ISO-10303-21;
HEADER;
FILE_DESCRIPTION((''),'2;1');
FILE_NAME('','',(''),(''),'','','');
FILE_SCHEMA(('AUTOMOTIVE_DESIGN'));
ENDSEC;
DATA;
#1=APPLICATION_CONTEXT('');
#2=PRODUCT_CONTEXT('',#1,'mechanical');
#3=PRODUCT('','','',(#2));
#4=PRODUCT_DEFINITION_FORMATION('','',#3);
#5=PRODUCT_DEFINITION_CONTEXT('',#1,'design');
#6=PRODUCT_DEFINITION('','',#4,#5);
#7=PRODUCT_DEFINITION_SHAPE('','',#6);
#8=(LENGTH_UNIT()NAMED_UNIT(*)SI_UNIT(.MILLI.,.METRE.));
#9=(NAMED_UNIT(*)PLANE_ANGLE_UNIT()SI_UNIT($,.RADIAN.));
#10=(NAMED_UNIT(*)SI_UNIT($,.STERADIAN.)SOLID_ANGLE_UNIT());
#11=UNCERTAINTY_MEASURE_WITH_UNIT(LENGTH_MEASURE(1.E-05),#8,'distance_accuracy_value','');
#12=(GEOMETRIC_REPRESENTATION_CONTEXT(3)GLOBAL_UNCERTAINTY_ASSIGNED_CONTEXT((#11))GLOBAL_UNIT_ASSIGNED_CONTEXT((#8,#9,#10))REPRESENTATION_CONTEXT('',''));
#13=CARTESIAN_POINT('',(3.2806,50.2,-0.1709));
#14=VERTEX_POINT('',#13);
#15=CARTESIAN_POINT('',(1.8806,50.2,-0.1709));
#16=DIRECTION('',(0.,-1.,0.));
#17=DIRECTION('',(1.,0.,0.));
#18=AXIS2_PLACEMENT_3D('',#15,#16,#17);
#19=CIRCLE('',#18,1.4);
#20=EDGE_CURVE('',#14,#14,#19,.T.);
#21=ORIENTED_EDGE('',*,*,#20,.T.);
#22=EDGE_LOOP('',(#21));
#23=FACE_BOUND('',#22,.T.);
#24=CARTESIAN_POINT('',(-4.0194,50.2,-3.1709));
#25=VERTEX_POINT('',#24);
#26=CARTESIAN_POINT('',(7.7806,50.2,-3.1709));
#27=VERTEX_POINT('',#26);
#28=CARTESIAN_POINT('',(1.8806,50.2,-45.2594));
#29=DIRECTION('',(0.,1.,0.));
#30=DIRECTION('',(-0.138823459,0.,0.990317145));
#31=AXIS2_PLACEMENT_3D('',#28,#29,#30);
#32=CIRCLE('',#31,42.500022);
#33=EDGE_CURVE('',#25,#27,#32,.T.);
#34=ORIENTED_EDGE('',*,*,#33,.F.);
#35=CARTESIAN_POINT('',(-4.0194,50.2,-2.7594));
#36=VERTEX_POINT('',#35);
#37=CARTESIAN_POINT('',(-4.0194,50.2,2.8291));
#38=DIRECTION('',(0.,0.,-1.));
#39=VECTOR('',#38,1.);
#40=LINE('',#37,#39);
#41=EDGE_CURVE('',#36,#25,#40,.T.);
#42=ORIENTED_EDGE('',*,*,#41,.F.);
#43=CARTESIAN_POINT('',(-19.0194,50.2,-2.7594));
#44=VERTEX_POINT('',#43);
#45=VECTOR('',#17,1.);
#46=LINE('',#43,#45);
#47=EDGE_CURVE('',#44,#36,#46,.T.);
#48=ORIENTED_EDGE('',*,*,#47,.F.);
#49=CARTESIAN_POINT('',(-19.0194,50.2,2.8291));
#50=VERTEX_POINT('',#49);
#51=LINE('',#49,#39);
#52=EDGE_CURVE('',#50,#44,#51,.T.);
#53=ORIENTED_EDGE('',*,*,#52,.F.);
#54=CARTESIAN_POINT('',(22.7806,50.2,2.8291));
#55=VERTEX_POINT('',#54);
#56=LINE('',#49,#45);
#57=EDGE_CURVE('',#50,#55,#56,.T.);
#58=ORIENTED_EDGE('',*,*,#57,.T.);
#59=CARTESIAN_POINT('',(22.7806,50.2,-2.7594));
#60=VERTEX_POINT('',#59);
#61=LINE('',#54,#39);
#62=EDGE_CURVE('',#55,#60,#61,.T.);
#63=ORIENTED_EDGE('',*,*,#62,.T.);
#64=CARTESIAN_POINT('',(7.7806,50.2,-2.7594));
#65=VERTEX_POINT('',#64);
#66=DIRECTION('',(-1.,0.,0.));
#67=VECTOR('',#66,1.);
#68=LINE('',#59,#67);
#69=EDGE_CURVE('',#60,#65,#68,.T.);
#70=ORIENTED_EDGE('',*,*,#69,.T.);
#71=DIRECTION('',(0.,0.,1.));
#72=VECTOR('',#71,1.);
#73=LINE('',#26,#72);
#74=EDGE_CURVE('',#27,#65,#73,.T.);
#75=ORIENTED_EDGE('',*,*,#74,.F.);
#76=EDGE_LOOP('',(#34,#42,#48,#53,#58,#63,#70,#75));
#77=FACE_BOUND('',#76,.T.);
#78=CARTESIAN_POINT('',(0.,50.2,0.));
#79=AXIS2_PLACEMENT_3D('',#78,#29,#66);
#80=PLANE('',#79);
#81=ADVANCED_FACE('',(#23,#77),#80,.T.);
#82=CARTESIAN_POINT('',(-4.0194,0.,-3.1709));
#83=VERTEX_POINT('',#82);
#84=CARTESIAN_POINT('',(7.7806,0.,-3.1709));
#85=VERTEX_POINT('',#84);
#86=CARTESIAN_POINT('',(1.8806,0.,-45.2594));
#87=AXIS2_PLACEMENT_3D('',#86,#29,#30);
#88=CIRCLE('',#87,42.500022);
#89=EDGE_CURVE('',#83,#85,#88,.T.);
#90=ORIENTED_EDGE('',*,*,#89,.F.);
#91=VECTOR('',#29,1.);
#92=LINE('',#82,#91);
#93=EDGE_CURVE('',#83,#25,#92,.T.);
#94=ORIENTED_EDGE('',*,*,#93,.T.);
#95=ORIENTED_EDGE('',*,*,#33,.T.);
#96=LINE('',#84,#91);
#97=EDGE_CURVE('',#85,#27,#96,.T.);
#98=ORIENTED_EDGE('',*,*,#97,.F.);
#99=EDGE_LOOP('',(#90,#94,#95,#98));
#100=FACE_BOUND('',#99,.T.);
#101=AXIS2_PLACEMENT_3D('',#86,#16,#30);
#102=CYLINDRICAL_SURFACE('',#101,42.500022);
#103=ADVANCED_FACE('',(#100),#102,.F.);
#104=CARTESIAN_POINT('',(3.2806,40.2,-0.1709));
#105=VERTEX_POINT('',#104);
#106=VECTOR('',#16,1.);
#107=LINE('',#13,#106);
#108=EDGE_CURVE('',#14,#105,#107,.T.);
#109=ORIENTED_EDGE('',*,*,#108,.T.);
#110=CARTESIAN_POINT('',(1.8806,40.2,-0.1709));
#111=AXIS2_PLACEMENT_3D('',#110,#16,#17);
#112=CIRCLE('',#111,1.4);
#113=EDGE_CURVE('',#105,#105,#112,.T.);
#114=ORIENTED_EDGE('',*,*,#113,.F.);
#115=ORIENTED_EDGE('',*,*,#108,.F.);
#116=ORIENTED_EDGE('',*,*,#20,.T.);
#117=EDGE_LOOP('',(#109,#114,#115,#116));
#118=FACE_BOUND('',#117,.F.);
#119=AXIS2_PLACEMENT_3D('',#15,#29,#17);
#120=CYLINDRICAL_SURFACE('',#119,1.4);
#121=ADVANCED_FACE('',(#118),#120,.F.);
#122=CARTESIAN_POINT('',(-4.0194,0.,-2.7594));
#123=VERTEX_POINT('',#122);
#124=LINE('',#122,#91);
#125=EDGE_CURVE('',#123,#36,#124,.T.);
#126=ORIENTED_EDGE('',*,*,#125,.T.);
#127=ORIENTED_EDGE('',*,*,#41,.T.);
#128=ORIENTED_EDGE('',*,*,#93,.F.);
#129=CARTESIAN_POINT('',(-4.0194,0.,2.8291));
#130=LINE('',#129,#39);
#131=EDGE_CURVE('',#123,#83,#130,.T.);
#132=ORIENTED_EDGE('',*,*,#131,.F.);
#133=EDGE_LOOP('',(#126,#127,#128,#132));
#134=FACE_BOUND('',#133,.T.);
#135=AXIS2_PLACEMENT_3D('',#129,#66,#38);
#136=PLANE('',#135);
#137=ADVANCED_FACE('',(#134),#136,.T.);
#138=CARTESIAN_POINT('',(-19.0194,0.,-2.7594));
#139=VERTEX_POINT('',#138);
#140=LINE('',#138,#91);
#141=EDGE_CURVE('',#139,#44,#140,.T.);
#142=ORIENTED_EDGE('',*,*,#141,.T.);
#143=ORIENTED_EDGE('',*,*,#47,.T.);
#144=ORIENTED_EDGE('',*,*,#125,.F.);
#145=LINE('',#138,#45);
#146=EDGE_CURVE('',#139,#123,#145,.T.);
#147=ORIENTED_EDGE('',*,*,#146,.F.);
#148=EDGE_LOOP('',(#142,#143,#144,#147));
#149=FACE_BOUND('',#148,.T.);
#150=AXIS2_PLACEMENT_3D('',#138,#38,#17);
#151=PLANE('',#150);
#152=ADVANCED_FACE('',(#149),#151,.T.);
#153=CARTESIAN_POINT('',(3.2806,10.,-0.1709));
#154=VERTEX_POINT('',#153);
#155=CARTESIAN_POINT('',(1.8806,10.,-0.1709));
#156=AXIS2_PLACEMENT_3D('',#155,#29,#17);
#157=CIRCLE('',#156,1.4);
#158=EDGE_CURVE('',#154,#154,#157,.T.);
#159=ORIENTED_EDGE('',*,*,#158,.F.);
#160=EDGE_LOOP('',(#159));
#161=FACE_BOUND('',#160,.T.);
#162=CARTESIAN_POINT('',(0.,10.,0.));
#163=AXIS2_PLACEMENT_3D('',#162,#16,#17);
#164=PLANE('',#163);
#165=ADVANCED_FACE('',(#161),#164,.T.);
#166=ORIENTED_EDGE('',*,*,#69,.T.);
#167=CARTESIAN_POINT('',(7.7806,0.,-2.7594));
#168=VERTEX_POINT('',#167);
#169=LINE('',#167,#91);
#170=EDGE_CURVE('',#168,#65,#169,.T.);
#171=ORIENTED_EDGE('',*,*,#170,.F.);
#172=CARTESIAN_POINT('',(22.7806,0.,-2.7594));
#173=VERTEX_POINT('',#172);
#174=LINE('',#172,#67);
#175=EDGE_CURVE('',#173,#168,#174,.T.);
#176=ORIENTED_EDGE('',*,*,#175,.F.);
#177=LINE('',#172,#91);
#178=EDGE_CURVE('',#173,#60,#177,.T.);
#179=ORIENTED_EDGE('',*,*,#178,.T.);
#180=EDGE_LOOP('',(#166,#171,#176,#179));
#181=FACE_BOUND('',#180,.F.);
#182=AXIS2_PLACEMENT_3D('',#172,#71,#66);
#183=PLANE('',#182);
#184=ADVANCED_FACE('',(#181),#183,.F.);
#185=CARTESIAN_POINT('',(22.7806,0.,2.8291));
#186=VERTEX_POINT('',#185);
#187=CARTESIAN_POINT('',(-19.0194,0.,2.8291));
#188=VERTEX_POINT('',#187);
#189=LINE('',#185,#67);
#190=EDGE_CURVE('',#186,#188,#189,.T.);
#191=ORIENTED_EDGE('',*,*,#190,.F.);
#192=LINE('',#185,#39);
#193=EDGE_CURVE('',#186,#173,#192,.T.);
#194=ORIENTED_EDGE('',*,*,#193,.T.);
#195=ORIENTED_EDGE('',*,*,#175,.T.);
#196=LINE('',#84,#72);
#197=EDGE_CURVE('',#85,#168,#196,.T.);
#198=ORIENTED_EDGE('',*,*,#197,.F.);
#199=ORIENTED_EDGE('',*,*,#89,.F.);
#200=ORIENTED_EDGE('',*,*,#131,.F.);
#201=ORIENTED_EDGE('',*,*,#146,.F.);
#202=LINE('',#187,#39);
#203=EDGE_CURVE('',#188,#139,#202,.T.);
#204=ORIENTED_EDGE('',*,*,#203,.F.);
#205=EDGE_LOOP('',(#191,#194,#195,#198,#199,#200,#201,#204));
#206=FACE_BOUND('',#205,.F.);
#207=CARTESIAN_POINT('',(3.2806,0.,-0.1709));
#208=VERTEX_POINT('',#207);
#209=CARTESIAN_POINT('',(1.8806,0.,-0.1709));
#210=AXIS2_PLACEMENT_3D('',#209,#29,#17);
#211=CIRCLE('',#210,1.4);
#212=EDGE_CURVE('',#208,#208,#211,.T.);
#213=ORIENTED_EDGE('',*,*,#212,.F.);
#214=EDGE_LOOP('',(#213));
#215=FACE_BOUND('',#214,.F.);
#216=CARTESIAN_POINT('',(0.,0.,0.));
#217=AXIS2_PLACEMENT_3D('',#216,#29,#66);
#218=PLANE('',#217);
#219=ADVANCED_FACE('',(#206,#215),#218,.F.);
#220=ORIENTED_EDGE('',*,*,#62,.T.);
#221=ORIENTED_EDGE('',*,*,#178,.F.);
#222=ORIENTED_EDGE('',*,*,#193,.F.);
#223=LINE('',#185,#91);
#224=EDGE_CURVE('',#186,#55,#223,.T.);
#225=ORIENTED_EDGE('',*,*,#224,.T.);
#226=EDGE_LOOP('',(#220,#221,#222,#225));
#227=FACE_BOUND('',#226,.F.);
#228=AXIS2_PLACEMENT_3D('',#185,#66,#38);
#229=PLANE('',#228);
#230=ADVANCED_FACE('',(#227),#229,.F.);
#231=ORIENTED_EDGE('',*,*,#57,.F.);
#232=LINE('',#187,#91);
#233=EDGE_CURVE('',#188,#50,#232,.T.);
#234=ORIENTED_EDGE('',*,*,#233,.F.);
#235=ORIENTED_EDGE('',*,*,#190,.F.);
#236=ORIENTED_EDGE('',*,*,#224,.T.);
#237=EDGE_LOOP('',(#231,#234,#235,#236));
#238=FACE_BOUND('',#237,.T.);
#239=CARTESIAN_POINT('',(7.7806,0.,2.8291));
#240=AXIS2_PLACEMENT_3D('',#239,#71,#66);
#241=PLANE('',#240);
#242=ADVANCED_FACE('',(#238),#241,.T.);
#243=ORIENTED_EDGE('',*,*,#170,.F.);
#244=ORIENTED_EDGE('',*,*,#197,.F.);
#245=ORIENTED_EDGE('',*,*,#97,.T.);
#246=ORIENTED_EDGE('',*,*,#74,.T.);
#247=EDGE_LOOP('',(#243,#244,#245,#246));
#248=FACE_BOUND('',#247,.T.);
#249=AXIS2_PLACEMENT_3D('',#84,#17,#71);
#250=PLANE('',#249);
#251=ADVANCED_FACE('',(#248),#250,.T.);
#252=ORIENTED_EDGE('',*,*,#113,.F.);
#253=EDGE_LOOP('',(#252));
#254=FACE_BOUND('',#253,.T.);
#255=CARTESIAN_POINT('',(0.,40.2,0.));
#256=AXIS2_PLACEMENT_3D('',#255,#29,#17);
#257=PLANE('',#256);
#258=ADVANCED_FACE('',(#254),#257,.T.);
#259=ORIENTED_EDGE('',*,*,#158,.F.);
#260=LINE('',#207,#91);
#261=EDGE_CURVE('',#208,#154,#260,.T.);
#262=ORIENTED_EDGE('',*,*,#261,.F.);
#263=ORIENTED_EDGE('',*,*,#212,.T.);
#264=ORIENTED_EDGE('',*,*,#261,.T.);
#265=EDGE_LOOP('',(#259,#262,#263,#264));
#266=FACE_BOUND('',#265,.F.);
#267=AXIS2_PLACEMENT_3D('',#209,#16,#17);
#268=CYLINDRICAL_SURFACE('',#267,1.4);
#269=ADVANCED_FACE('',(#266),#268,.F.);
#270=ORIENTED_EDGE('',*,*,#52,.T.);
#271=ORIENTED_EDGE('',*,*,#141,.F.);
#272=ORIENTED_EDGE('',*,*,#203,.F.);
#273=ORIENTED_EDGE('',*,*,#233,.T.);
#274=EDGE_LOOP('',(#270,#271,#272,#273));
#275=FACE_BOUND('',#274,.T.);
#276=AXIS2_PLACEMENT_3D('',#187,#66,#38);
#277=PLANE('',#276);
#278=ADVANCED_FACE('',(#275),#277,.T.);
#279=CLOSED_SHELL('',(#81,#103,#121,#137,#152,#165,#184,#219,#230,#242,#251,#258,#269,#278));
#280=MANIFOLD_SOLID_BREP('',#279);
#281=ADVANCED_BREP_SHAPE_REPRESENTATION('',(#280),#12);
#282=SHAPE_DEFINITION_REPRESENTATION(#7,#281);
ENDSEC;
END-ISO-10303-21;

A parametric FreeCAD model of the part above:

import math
import FreeCAD as App
import Part
import Sketcher


def add_polygon(sketch, points):
    """Adds a closed chain of lines whose ends are joined by coincident constraints."""
    first, n = sketch.GeometryCount, len(points)
    for a, b in zip(points, points[1:] + points[:1]):
        sketch.addGeometry(Part.LineSegment(App.Vector(*a, 0), App.Vector(*b, 0)), False)
    for i in range(n):
        sketch.addConstraint(Sketcher.Constraint("Coincident", first + i, 2, first + (i + 1) % n, 1))

doc = App.newDocument("Part")
body = doc.addObject("PartDesign::Body", "Body")

# Sketch on XZ plane
sketch1 = doc.addObject("Sketcher::SketchObject", "Sketch")
body.addObject(sketch1)
sketch1.AttachmentSupport = (doc.XZ_Plane, [""])
sketch1.MapMode = "FlatFace"
sketch1.addGeometry([
    Part.ArcOfCircle(Part.Circle(App.Vector(1.8806, -45.2594, 0), App.Vector(0, 0, 1), 42.500022), math.radians(82.020229), math.radians(97.979771)),
    Part.LineSegment(App.Vector(-4.0194, -3.1709, 0), App.Vector(-4.0194, 2.8291, 0)),
    Part.LineSegment(App.Vector(-4.0194, 2.8291, 0), App.Vector(7.7806, 2.8291, 0)),
    Part.LineSegment(App.Vector(7.7806, 2.8291, 0), App.Vector(7.7806, -3.1709, 0)),
], False)
sketch1.addConstraint([
    Sketcher.Constraint("Coincident", 0, 2, 1, 1),
    Sketcher.Constraint("Coincident", 1, 2, 2, 1),
    Sketcher.Constraint("Coincident", 2, 2, 3, 1),
    Sketcher.Constraint("Coincident", 3, 2, 0, 1),
    Sketcher.Constraint("Vertical", 1),
    Sketcher.Constraint("Horizontal", 2),
    Sketcher.Constraint("Vertical", 3),
    Sketcher.Constraint("Horizontal", 0, 2, 3, 2),
    Sketcher.Constraint("DistanceY", 1, 1, 1, 2, 6.0),
    Sketcher.Constraint("DistanceX", 2, 1, 2, 2, 11.8),
    Sketcher.Constraint("Radius", 0, 42.5),
    Sketcher.Constraint("DistanceY", 0, 2, -1, 1, 3.171),
    Sketcher.Constraint("DistanceX", -1, 1, 0, 3, 1.8806),
])
pad1 = doc.addObject("PartDesign::Pad", "Pad")
body.addObject(pad1)
pad1.Profile = sketch1
pad1.Length = 50.2
pad1.Reversed = True

# Sketch on XZ plane
sketch2 = doc.addObject("Sketcher::SketchObject", "Sketch001")
body.addObject(sketch2)
sketch2.AttachmentSupport = (doc.XZ_Plane, [""])
sketch2.MapMode = "FlatFace"
sketch2.AttachmentOffset = App.Placement(App.Vector(0, 0, -50.2), App.Rotation())
sketch2.addGeometry(Part.Circle(App.Vector(1.8806, -0.1709, 0), App.Vector(0, 0, 1), 1.4), False)
sketch2.addConstraint([
    Sketcher.Constraint("Diameter", 0, 2.8),
    Sketcher.Constraint("DistanceY", 0, 3, -1, 1, 0.171),
    Sketcher.Constraint("DistanceX", -1, 1, 0, 3, 1.8806),
])
pocket1 = doc.addObject("PartDesign::Pocket", "Pocket")
body.addObject(pocket1)
pocket1.Profile = sketch2
pocket1.Length = 10
pocket1.Reversed = True

# Sketch on XZ plane
sketch3 = doc.addObject("Sketcher::SketchObject", "Sketch002")
body.addObject(sketch3)
sketch3.AttachmentSupport = (doc.XZ_Plane, [""])
sketch3.MapMode = "FlatFace"
sketch3.addGeometry(Part.Circle(App.Vector(1.8806, -0.1709, 0), App.Vector(0, 0, 1), 1.4), False)
sketch3.addConstraint([
    Sketcher.Constraint("Diameter", 0, 2.8),
    Sketcher.Constraint("DistanceY", 0, 3, -1, 1, 0.171),
    Sketcher.Constraint("DistanceX", -1, 1, 0, 3, 1.8806),
])
pocket2 = doc.addObject("PartDesign::Pocket", "Pocket001")
body.addObject(pocket2)
pocket2.Profile = sketch3
pocket2.Length = 10

# Sketch on XZ plane
sketch4 = doc.addObject("Sketcher::SketchObject", "Sketch003")
body.addObject(sketch4)
sketch4.AttachmentSupport = (doc.XZ_Plane, [""])
sketch4.MapMode = "FlatFace"
add_polygon(sketch4, [(-19.0194, -2.7594), (-4.0194, -2.7594), (-4.0194, 2.8291), (-19.0194, 2.8291)])  # lines 0-3
add_polygon(sketch4, [(7.7806, 2.8291), (7.7806, -2.7594), (22.7806, -2.7594), (22.7806, 2.8291)])  # lines 4-7
sketch4.addConstraint([
    Sketcher.Constraint("Horizontal", 0),
    Sketcher.Constraint("Vertical", 1),
    Sketcher.Constraint("Horizontal", 2),
    Sketcher.Constraint("Vertical", 3),
    Sketcher.Constraint("Vertical", 4),
    Sketcher.Constraint("Horizontal", 5),
    Sketcher.Constraint("Vertical", 6),
    Sketcher.Constraint("Horizontal", 7),
    Sketcher.Constraint("Horizontal", 3, 2, 4, 2),
    Sketcher.Constraint("Horizontal", 2, 2, 6, 2),
    Sketcher.Constraint("Equal", 2, 5),
    Sketcher.Constraint("DistanceX", 0, 1, 0, 2, 15.0),
    Sketcher.Constraint("DistanceX", 0, 2, 4, 2, 11.8),
    Sketcher.Constraint("DistanceY", 1, 1, 1, 2, 5.5885),
    Sketcher.Constraint("DistanceY", -1, 1, 1, 2, 2.829),
    Sketcher.Constraint("DistanceX", 0, 2, -1, 1, 4.0194),
])
pad2 = doc.addObject("PartDesign::Pad", "Pad001")
body.addObject(pad2)
pad2.Profile = sketch4
pad2.Length = 50.2
pad2.Reversed = True

doc.recompute()
